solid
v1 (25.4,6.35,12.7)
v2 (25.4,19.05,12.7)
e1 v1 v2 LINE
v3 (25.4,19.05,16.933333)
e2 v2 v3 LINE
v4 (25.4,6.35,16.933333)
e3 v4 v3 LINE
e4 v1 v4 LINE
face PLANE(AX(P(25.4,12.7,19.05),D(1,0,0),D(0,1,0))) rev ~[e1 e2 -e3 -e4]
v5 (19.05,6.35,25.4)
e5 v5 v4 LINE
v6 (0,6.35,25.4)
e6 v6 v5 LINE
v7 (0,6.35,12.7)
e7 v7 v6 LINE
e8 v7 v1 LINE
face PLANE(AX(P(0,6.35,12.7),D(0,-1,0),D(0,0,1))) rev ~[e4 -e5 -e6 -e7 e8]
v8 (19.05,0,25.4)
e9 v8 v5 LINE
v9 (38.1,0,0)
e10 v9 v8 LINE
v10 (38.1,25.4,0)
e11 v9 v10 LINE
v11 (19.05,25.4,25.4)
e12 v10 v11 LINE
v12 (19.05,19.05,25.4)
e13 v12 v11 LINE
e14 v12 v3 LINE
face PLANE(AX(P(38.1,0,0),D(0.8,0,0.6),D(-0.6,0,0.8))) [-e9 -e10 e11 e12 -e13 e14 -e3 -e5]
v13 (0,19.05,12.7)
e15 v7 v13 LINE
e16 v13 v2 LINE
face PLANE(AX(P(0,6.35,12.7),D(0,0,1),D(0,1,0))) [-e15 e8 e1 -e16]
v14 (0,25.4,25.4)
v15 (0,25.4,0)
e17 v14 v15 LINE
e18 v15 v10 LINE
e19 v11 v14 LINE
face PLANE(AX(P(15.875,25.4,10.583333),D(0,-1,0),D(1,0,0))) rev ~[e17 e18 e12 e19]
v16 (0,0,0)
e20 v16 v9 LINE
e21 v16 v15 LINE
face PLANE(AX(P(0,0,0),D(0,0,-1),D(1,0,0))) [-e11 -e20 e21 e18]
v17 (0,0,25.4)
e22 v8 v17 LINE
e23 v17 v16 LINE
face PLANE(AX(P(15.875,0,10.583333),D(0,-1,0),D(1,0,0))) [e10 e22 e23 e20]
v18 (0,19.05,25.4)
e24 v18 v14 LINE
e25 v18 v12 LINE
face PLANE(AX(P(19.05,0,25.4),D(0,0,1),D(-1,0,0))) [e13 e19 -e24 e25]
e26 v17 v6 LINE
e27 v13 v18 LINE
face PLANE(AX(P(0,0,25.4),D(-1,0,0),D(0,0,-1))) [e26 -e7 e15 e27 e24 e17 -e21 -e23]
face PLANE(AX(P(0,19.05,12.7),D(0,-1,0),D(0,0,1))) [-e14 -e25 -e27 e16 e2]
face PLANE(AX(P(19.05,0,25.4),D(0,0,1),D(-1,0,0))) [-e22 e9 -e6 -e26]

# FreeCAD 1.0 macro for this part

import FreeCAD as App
import Part
import Sketcher
Q = App.Units.Quantity


def add_polygon(sketch, points):
    """Adds a closed chain of lines whose ends are joined by coincident constraints."""
    first, n = sketch.GeometryCount, len(points)
    for a, b in zip(points, points[1:] + points[:1]):
        sketch.addGeometry(Part.LineSegment(App.Vector(*a, 0), App.Vector(*b, 0)), False)
    for i in range(n):
        sketch.addConstraint(Sketcher.Constraint("Coincident", first + i, 2, first + (i + 1) % n, 1))

doc = App.newDocument("Part")
params = doc.addObject("Spreadsheet::Sheet", "Params")
for row, (alias, value) in enumerate([
    ("sketch1_height", "1 in"),
    ("sketch1_width", "1.5 in"),
    ("sketch1_width2", "0.75 in"),
    ("pad1_length", "1 in"),
    ("sketch2_width", "0.5 in"),
    ("pocket1_length", "1 in"),
], start=1):
    params.set(f"A{row}", alias)
    params.set(f"B{row}", "=" + value)
    params.setAlias(f"B{row}", alias)

body = doc.addObject("PartDesign::Body", "Body")

# Sketch on XZ plane
sketch1 = body.newObject("Sketcher::SketchObject", "Sketch")
sketch1.AttachmentSupport = (doc.getObject("XZ_Plane"), [""])
sketch1.MapMode = "FlatFace"
add_polygon(sketch1, [(19, 25), (0, 25), (0, 0), (38, 0)])  # lines 0-3
sketch1.addConstraint([
    Sketcher.Constraint("Horizontal", 0),
    Sketcher.Constraint("Vertical", 1),
    Sketcher.Constraint("Horizontal", 2),
    Sketcher.Constraint("Coincident", 1, 2, -1, 1),
    Sketcher.Constraint("DistanceY", 1, 2, 1, 1, Q("1 in")),
    Sketcher.Constraint("DistanceX", 2, 1, 2, 2, Q("1.5 in")),
    Sketcher.Constraint("DistanceX", 0, 2, 0, 1, Q("0.75 in")),
])
sketch1.setExpression("Constraints[8]", "Params.sketch1_height")
sketch1.setExpression("Constraints[9]", "Params.sketch1_width")
sketch1.setExpression("Constraints[10]", "Params.sketch1_width2")
pad1 = body.newObject("PartDesign::Pad", "Pad")
pad1.Profile = sketch1
pad1.setExpression("Length", "Params.pad1_length")
pad1.Reversed = True

# Sketch on YZ plane
sketch2 = body.newObject("Sketcher::SketchObject", "Sketch001")
sketch2.AttachmentSupport = (doc.getObject("YZ_Plane"), [""])
sketch2.MapMode = "FlatFace"
add_polygon(sketch2, [(6, 25), (6, 13), (19, 13), (19, 25)])  # lines 0-3
sketch2.addConstraint([
    Sketcher.Constraint("Vertical", 0),
    Sketcher.Constraint("Horizontal", 1),
    Sketcher.Constraint("Vertical", 2),
    Sketcher.Constraint("Horizontal", 3),
    Sketcher.Constraint("Equal", 3, 0),
    Sketcher.Constraint("DistanceX", 1, 1, 1, 2, Q("0.5 in")),
    Sketcher.Constraint("DistanceY", -1, 1, 2, 2, Q("1 in")),
    Sketcher.Constraint("DistanceX", -1, 1, 0, 2, Q("0.25 in")),
])
sketch2.setExpression("Constraints[9]", "Params.sketch2_width")
pocket1 = body.newObject("PartDesign::Pocket", "Pocket")
pocket1.Profile = sketch2
pocket1.setExpression("Length", "Params.pocket1_length")
pocket1.Reversed = True

doc.recompute()
